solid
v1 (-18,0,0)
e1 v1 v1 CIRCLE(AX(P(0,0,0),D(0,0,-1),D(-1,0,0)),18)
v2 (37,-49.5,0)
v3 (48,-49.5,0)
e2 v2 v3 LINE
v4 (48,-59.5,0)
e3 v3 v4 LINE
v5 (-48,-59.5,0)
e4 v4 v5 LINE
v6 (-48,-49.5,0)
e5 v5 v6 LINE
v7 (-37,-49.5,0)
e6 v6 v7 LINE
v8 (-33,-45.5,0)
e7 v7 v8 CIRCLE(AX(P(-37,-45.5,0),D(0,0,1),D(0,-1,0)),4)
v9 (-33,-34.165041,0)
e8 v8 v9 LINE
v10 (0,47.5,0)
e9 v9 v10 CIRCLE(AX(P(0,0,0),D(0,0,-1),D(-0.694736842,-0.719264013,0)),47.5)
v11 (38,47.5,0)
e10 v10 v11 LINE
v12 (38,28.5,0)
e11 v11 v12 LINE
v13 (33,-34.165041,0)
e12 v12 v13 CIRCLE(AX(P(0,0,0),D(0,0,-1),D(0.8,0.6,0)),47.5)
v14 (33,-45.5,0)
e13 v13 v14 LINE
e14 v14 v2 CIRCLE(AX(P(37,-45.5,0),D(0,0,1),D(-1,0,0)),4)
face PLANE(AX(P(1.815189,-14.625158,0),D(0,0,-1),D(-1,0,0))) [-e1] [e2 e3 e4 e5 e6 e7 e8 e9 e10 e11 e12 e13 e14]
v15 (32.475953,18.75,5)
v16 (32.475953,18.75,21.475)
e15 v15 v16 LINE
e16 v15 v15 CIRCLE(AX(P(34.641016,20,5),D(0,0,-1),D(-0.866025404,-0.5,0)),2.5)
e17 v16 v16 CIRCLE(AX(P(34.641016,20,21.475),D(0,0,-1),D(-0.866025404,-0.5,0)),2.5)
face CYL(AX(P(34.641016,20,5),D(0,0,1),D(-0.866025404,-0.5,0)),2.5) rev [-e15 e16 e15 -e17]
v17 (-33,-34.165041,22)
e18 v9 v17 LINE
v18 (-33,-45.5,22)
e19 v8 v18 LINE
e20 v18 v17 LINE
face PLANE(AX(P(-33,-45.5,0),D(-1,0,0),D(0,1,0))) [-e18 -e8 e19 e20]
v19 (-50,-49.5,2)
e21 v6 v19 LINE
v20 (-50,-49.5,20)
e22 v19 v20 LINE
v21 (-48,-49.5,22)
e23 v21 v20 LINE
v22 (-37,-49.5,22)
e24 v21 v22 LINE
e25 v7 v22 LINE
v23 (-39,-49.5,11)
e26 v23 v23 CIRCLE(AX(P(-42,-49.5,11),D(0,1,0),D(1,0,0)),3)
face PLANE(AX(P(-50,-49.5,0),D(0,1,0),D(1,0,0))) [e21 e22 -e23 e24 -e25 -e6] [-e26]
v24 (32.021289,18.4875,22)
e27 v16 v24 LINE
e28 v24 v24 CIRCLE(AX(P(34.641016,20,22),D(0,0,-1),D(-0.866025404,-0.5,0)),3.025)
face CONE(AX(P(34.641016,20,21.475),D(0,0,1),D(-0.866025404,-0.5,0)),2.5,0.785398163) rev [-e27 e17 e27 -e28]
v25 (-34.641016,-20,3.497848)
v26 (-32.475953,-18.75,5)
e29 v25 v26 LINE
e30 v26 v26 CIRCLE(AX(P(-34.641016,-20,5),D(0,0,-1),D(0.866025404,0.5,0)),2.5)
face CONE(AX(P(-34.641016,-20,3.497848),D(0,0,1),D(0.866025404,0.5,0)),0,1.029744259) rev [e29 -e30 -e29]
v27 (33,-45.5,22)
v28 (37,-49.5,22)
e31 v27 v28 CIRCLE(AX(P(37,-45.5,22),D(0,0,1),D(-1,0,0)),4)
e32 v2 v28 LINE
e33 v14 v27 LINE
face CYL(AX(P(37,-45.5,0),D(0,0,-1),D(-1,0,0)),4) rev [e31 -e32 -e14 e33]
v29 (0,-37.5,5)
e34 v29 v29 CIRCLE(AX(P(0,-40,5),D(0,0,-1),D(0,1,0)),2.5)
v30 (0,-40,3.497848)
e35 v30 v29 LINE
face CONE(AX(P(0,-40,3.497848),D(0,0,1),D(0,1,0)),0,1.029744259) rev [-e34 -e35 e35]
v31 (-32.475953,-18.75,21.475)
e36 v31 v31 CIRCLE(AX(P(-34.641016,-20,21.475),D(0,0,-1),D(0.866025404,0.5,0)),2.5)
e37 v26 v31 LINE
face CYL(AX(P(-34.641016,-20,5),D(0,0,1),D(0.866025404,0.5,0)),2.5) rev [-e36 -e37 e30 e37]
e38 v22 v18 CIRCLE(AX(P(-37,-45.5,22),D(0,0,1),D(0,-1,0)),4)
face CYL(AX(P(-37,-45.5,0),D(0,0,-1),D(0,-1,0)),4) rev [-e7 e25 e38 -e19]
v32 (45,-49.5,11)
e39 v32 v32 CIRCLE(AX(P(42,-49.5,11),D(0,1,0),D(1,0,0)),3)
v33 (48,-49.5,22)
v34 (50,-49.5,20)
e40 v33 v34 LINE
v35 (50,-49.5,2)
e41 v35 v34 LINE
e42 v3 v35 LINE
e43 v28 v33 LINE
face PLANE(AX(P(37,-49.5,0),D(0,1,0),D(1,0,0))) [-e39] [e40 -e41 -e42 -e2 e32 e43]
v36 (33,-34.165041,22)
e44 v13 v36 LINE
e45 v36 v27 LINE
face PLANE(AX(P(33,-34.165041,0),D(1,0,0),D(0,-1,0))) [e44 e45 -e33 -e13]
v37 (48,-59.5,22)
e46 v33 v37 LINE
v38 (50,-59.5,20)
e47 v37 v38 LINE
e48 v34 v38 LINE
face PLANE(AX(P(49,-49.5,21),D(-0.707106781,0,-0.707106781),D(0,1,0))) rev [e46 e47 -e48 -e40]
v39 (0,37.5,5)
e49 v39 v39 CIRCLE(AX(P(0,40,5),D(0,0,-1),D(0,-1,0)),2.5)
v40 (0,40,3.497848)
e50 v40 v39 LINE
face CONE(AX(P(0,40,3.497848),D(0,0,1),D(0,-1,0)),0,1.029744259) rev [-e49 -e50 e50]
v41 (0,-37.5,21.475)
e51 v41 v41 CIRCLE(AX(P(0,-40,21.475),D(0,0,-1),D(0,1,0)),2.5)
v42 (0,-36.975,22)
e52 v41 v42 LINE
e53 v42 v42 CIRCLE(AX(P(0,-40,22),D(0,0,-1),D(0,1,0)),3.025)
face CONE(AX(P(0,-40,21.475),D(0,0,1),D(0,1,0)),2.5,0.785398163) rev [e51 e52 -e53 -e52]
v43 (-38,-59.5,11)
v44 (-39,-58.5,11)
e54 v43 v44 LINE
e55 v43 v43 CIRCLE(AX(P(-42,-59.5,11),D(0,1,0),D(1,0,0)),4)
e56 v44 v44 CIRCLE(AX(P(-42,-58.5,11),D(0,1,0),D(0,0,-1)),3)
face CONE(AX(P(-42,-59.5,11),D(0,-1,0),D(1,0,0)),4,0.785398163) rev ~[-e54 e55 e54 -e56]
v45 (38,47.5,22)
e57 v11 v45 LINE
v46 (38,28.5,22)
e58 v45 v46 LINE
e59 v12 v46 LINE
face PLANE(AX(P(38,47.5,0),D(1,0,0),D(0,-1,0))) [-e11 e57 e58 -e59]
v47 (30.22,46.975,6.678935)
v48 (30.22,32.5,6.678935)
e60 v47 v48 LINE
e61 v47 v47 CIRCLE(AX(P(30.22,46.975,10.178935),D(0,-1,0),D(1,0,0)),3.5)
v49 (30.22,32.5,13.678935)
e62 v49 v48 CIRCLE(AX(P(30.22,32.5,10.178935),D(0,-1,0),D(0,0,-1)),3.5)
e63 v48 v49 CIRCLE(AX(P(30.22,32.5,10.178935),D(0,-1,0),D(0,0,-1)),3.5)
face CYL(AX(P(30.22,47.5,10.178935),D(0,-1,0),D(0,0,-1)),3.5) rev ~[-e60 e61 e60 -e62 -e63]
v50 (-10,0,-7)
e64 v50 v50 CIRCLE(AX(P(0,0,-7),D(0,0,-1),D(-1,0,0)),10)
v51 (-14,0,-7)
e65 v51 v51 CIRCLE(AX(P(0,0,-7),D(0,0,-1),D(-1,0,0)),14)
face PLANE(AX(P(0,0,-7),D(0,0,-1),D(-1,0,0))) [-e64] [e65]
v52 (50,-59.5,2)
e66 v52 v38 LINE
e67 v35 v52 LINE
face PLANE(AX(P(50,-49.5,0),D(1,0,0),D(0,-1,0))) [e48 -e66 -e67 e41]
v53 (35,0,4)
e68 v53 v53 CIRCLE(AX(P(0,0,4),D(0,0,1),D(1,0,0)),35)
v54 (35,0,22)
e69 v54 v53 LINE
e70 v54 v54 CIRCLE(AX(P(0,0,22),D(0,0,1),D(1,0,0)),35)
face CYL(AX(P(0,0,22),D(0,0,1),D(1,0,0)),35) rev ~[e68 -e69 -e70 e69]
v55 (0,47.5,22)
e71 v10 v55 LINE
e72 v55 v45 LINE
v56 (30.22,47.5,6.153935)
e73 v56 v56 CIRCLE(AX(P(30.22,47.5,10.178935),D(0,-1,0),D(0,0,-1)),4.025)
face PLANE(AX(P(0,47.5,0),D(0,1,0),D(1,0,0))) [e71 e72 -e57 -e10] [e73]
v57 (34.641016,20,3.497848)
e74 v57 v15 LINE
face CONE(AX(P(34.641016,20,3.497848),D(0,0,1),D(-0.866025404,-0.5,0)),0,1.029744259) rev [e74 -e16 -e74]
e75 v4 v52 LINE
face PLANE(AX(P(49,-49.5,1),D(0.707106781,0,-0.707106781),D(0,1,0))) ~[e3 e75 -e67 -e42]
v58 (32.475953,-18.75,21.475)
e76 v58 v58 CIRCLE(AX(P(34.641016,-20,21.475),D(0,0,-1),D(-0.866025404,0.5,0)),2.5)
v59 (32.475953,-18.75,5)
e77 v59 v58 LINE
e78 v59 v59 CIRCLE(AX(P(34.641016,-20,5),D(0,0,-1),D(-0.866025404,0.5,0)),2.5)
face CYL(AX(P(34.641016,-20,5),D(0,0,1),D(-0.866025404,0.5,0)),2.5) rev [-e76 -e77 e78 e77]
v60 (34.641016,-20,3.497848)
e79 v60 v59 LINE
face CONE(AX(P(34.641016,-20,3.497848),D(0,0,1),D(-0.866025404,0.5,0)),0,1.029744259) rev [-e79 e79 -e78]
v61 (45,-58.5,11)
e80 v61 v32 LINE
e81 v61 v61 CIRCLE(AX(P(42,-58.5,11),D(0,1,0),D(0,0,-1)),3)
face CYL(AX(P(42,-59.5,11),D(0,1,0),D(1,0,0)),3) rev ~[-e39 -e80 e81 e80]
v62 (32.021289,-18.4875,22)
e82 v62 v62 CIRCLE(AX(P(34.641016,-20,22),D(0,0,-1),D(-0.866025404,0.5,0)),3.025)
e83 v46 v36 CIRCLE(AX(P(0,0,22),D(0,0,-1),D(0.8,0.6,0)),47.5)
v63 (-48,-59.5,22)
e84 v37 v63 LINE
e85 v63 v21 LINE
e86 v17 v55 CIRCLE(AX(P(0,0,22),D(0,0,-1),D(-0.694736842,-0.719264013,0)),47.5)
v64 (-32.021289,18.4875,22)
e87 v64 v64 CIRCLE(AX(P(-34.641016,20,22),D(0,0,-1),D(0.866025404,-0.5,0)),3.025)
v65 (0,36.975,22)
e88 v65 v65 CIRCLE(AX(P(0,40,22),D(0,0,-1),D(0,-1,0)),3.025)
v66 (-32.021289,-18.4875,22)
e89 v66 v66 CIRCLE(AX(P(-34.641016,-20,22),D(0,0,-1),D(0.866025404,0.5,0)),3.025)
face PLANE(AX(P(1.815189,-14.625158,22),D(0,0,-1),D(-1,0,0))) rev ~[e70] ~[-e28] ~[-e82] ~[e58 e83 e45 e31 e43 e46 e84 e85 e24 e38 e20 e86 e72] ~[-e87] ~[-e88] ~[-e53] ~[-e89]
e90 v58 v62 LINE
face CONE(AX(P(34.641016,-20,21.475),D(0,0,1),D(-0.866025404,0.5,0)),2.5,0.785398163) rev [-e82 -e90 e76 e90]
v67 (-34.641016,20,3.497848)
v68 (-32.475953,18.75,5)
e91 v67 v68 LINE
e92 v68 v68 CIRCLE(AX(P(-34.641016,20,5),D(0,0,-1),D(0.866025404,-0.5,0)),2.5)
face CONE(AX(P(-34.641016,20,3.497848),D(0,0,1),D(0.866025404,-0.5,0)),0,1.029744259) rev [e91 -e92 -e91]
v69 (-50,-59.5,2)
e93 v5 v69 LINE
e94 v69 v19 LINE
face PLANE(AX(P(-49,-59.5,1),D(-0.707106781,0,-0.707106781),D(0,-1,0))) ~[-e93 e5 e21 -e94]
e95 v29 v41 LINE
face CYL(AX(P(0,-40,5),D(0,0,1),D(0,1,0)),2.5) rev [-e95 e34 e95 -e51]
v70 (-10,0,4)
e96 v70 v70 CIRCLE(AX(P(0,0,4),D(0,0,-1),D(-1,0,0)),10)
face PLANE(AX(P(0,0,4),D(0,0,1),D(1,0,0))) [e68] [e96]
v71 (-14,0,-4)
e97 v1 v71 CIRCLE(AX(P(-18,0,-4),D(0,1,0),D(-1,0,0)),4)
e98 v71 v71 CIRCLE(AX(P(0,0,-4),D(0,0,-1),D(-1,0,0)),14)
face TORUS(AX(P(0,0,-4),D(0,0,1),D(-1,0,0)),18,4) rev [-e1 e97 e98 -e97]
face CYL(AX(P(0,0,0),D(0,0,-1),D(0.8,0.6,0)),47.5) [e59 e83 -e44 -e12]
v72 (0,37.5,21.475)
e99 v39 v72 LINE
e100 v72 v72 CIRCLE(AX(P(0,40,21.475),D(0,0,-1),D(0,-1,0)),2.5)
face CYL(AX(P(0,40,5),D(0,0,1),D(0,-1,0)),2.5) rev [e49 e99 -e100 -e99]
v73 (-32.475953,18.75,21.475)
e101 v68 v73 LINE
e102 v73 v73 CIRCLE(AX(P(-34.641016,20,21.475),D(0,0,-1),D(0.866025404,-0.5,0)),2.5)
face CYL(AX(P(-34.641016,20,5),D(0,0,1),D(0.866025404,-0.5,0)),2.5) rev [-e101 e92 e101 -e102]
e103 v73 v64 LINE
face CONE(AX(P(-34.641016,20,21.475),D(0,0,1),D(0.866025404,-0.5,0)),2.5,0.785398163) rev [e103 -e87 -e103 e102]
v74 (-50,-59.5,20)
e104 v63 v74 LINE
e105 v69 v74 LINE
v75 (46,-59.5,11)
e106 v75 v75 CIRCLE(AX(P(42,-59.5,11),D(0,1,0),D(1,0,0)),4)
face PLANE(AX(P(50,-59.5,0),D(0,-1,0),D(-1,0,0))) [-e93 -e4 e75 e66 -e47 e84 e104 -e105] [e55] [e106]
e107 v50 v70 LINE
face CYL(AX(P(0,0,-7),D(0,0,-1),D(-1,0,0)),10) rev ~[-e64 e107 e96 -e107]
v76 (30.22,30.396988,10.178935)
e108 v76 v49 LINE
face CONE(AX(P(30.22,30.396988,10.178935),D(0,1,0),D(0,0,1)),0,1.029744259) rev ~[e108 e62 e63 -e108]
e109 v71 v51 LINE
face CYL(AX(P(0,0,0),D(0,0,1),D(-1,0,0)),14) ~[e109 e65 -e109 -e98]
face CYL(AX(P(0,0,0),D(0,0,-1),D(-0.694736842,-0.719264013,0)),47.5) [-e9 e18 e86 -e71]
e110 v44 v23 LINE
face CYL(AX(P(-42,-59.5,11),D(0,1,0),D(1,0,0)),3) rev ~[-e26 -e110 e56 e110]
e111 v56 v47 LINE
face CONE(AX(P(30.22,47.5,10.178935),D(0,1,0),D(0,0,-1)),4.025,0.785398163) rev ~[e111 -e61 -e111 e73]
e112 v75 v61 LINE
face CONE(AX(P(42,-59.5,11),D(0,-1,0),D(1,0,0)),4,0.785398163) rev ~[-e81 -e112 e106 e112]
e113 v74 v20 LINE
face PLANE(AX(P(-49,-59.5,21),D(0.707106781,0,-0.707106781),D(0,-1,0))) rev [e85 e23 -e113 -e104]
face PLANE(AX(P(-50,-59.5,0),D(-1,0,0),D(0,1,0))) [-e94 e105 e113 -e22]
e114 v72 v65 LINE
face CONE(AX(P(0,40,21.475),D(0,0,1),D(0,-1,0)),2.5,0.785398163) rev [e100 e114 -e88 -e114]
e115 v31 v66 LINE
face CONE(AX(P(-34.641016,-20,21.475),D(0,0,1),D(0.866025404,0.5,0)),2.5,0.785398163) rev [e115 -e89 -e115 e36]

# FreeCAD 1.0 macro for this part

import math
import FreeCAD as App
import Part
import Sketcher
from FreeCAD import Vector
Q = App.Units.Quantity


def edges_at(feature, points):
    """Names of the edges that pass closest to the given points."""
    edges = feature.Shape.Edges
    near = lambda p: min(range(len(edges)), key=lambda i: edges[i].distToShape(Part.Vertex(*p))[0])
    return sorted({f"Edge{near(p) + 1}" for p in points})

doc = App.newDocument("Part")
body = doc.addObject("PartDesign::Body", "Body")

# Sketch on XY plane
sketch1 = body.newObject("Sketcher::SketchObject", "Sketch")
sketch1.AttachmentSupport = (doc.getObject("XY_Plane"), [""])
sketch1.MapMode = "FlatFace"
sketch1.addGeometry(Part.LineSegment(Vector(38, 47.5, 0), Vector(0, 47.5, 0)), False)
sketch1.addGeometry(Part.ArcOfCircle(Part.Circle(Vector(0, 0, 0), Vector(0, 0, 1), 47.5), math.radians(90), math.radians(226)), False)
sketch1.addGeometry(Part.LineSegment(Vector(-33, -34.2, 0), Vector(-33, -45.5, 0)), False)
sketch1.addGeometry(Part.ArcOfCircle(Part.Circle(Vector(-37, -45.5, 0), Vector(0, 0, 1), 4), math.radians(-90), math.radians(0)), False)
sketch1.addGeometry(Part.LineSegment(Vector(-37, -49.5, 0), Vector(-50, -49.5, 0)), False)
sketch1.addGeometry(Part.LineSegment(Vector(-50, -49.5, 0), Vector(-50, -59.5, 0)), False)
sketch1.addGeometry(Part.LineSegment(Vector(-50, -59.5, 0), Vector(50, -59.5, 0)), False)
sketch1.addGeometry(Part.LineSegment(Vector(50, -59.5, 0), Vector(50, -49.5, 0)), False)
sketch1.addGeometry(Part.LineSegment(Vector(50, -49.5, 0), Vector(37, -49.5, 0)), False)
sketch1.addGeometry(Part.ArcOfCircle(Part.Circle(Vector(37, -45.5, 0), Vector(0, 0, 1), 4), math.radians(180), math.radians(270)), False)
sketch1.addGeometry(Part.LineSegment(Vector(33, -45.5, 0), Vector(33, -34.2, 0)), False)
sketch1.addGeometry(Part.ArcOfCircle(Part.Circle(Vector(0, 0, 0), Vector(0, 0, 1), 47.5), math.radians(-46), math.radians(37)), False)
sketch1.addGeometry(Part.LineSegment(Vector(38, 28.5, 0), Vector(38, 47.5, 0)), False)
sketch1.addConstraint(Sketcher.Constraint("Tangent", 0, 2, 1, 1))
sketch1.addConstraint(Sketcher.Constraint("Coincident", 1, 2, 2, 1))
sketch1.addConstraint(Sketcher.Constraint("Tangent", 2, 2, 3, 2))
sketch1.addConstraint(Sketcher.Constraint("Tangent", 3, 1, 4, 1))
sketch1.addConstraint(Sketcher.Constraint("Coincident", 4, 2, 5, 1))
sketch1.addConstraint(Sketcher.Constraint("Coincident", 5, 2, 6, 1))
sketch1.addConstraint(Sketcher.Constraint("Coincident", 6, 2, 7, 1))
sketch1.addConstraint(Sketcher.Constraint("Coincident", 7, 2, 8, 1))
sketch1.addConstraint(Sketcher.Constraint("Tangent", 8, 2, 9, 2))
sketch1.addConstraint(Sketcher.Constraint("Tangent", 9, 1, 10, 1))
sketch1.addConstraint(Sketcher.Constraint("Coincident", 10, 2, 11, 1))
sketch1.addConstraint(Sketcher.Constraint("Coincident", 11, 2, 12, 1))
sketch1.addConstraint(Sketcher.Constraint("Coincident", 12, 2, 0, 1))
sketch1.addConstraint(Sketcher.Constraint("Horizontal", 0))
sketch1.addConstraint(Sketcher.Constraint("Vertical", 2))
sketch1.addConstraint(Sketcher.Constraint("Horizontal", 4))
sketch1.addConstraint(Sketcher.Constraint("Vertical", 5))
sketch1.addConstraint(Sketcher.Constraint("Horizontal", 6))
sketch1.addConstraint(Sketcher.Constraint("Vertical", 7))
sketch1.addConstraint(Sketcher.Constraint("Horizontal", 8))
sketch1.addConstraint(Sketcher.Constraint("Vertical", 10))
sketch1.addConstraint(Sketcher.Constraint("Vertical", 12))
sketch1.addConstraint(Sketcher.Constraint("Coincident", 1, 3, -1, 1))
sketch1.addConstraint(Sketcher.Constraint("Coincident", 11, 3, -1, 1))
sketch1.addConstraint(Sketcher.Constraint("Equal", 3, 9))
sketch1.addConstraint(Sketcher.Constraint("Equal", 1, 11))
sketch1.addConstraint(Sketcher.Constraint("Symmetric", 3, 3, 9, 3, -2))
sketch1.addConstraint(Sketcher.Constraint("Equal", 4, 8))
sketch1.addConstraint(Sketcher.Constraint("Radius", 3, 4.0))
sketch1.addConstraint(Sketcher.Constraint("Radius", 1, 47.5))
sketch1.addConstraint(Sketcher.Constraint("DistanceX", 0, 2, 0, 1, 38.0))
sketch1.addConstraint(Sketcher.Constraint("DistanceX", 4, 2, 4, 1, 13.0))
sketch1.addConstraint(Sketcher.Constraint("DistanceX", 6, 1, 6, 2, 100.0))
sketch1.addConstraint(Sketcher.Constraint("DistanceY", 5, 2, 5, 1, 10.0))
sketch1.addConstraint(Sketcher.Constraint("DistanceY", 3, 3, 0, 2, 93.0))
pad1 = body.newObject("PartDesign::Pad", "Pad")
pad1.Profile = sketch1
pad1.Length = 22

# Sketch on XY plane
sketch2 = body.newObject("Sketcher::SketchObject", "Sketch001")
sketch2.AttachmentSupport = (doc.getObject("XY_Plane"), [""])
sketch2.MapMode = "FlatFace"
sketch2.AttachmentOffset = App.Placement(Vector(0, 0, 22), App.Rotation())
sketch2.addGeometry(Part.Circle(Vector(0, 0, 0), Vector(0, 0, 1), 35), False)
sketch2.addConstraint(Sketcher.Constraint("Coincident", 0, 3, -1, 1))
sketch2.addConstraint(Sketcher.Constraint("Diameter", 0, 70.0))
pocket1 = body.newObject("PartDesign::Pocket", "Pocket")
pocket1.Profile = sketch2
pocket1.Length = 18
doc.recompute()

chamfer = body.newObject("PartDesign::Chamfer", "Chamfer")
chamfer.Base = (pocket1, edges_at(pocket1, [
    (50, -54.5, 0),
    (-50, -54.5, 0),
    (-50, -54.5, 22),
    (50, -54.5, 22),
]))
chamfer.Size = 2

# Sketch on YZ plane
sketch3 = body.newObject("Sketcher::SketchObject", "Sketch002")
sketch3.AttachmentSupport = (doc.getObject("YZ_Plane"), [""])
sketch3.MapMode = "FlatFace"
sketch3.addGeometry(Part.LineSegment(Vector(40, 3.5, 0), Vector(40, 22, 0)), False)
sketch3.addGeometry(Part.LineSegment(Vector(40, 22, 0), Vector(37, 22, 0)), False)
sketch3.addGeometry(Part.LineSegment(Vector(37, 22, 0), Vector(37.5, 21.5, 0)), False)
sketch3.addGeometry(Part.LineSegment(Vector(37.5, 21.5, 0), Vector(37.5, 5, 0)), False)
sketch3.addGeometry(Part.LineSegment(Vector(37.5, 5, 0), Vector(40, 3.5, 0)), False)
sketch3.addGeometry(Part.LineSegment(Vector(40, 22, 0), Vector(40, 3.5, 0)), True)  # axis
sketch3.addConstraint(Sketcher.Constraint("Coincident", 0, 2, 1, 1))
sketch3.addConstraint(Sketcher.Constraint("Coincident", 1, 2, 2, 1))
sketch3.addConstraint(Sketcher.Constraint("Coincident", 2, 2, 3, 1))
sketch3.addConstraint(Sketcher.Constraint("Coincident", 3, 2, 4, 1))
sketch3.addConstraint(Sketcher.Constraint("Coincident", 4, 2, 0, 1))
sketch3.addConstraint(Sketcher.Constraint("Vertical", 0))
sketch3.addConstraint(Sketcher.Constraint("Horizontal", 1))
sketch3.addConstraint(Sketcher.Constraint("Vertical", 3))
sketch3.addConstraint(Sketcher.Constraint("Vertical", 5))
sketch3.addConstraint(Sketcher.Constraint("Coincident", 5, 1, 0, 2))
sketch3.addConstraint(Sketcher.Constraint("Equal", 0, 5))
sketch3.addConstraint(Sketcher.Constraint("Angle", 2, Q("-45 deg")))
sketch3.addConstraint(Sketcher.Constraint("Angle", 4, Q("-31 deg")))
sketch3.addConstraint(Sketcher.Constraint("DistanceX", -1, 1, 0, 2, 40.0))
sketch3.addConstraint(Sketcher.Constraint("DistanceY", -1, 1, 0, 2, 22.0))
sketch3.addConstraint(Sketcher.Constraint("DistanceY", -1, 1, 3, 2, 5.0))
sketch3.addConstraint(Sketcher.Constraint("DistanceX", -1, 1, 2, 2, 37.5))
sketch3.addConstraint(Sketcher.Constraint("DistanceX", 1, 2, 1, 1, 3.025))
groove = body.newObject("PartDesign::Groove", "Groove")
groove.Profile = sketch3
groove.ReferenceAxis = (sketch3, ["Axis0"])
groove.Angle = 360
doc.recompute()

polarpattern = body.newObject("PartDesign::PolarPattern", "PolarPattern")
polarpattern.Originals = [groove]
polarpattern.Axis = (doc.getObject("Z_Axis"), [""])
polarpattern.Angle = 360
polarpattern.Occurrences = 6
body.Tip = polarpattern

# Sketch on XZ plane
sketch4 = body.newObject("Sketcher::SketchObject", "Sketch003")
sketch4.AttachmentSupport = (doc.getObject("XZ_Plane"), [""])
sketch4.MapMode = "FlatFace"
sketch4.AttachmentOffset = App.Placement(Vector(0, 0, -47.5), App.Rotation())
sketch4.addGeometry(Part.Circle(Vector(30.2, 10.2, 0), Vector(0, 0, 1), 3.5), False)
sketch4.addConstraint(Sketcher.Constraint("Diameter", 0, 7.0))
sketch4.addConstraint(Sketcher.Constraint("DistanceX", -1, 1, 0, 3, 30.22))
sketch4.addConstraint(Sketcher.Constraint("DistanceY", -1, 1, 0, 3, 10.178935))
doc.recompute()
hole = body.newObject("PartDesign::Hole", "Hole")
hole.Profile = sketch4
hole.ThreadType = "None"
hole.Diameter = 7
hole.DepthType = "Dimension"
hole.Depth = 15
hole.DrillPoint = "Angled"
hole.DrillPointAngle = 118
hole.HoleCutType = "Countersink"
hole.HoleCutDiameter = 8.05
hole.HoleCutCountersinkAngle = 90
hole.Reversed = True

# Sketch on XZ plane
sketch5 = body.newObject("Sketcher::SketchObject", "Sketch004")
sketch5.AttachmentSupport = (doc.getObject("XZ_Plane"), [""])
sketch5.MapMode = "FlatFace"
sketch5.AttachmentOffset = App.Placement(Vector(0, 0, 59.5), App.Rotation())
sketch5.addGeometry(Part.Circle(Vector(-42, 11, 0), Vector(0, 0, 1), 3), False)
sketch5.addGeometry(Part.Circle(Vector(42, 11, 0), Vector(0, 0, 1), 3), False)
sketch5.addConstraint(Sketcher.Constraint("Equal", 0, 1))
sketch5.addConstraint(Sketcher.Constraint("Symmetric", 0, 3, 1, 3, -2))
sketch5.addConstraint(Sketcher.Constraint("Diameter", 0, 6.0))
sketch5.addConstraint(Sketcher.Constraint("DistanceX", 0, 3, -1, 1, 42.0))
sketch5.addConstraint(Sketcher.Constraint("DistanceY", -1, 1, 0, 3, 11.0))
doc.recompute()
hole2 = body.newObject("PartDesign::Hole", "Hole001")
hole2.Profile = sketch5
hole2.ThreadType = "None"
hole2.Diameter = 6
hole2.DepthType = "Dimension"
hole2.Depth = 20
hole2.DrillPoint = "Angled"
hole2.DrillPointAngle = 118
hole2.HoleCutType = "Countersink"
hole2.HoleCutDiameter = 8
hole2.HoleCutCountersinkAngle = 90

# Sketch on XY plane
sketch6 = body.newObject("Sketcher::SketchObject", "Sketch005")
sketch6.AttachmentSupport = (doc.getObject("XY_Plane"), [""])
sketch6.MapMode = "FlatFace"
sketch6.addGeometry(Part.Circle(Vector(0, 0, 0), Vector(0, 0, 1), 14), False)
sketch6.addConstraint(Sketcher.Constraint("Coincident", 0, 3, -1, 1))
sketch6.addConstraint(Sketcher.Constraint("Diameter", 0, 28.0))
pad2 = body.newObject("PartDesign::Pad", "Pad001")
pad2.Profile = sketch6
pad2.Length = 7
pad2.Reversed = True
doc.recompute()

fillet = body.newObject("PartDesign::Fillet", "Fillet")
fillet.Base = (pad2, edges_at(pad2, [(14, 0, 0)]))
fillet.Radius = 4

# Sketch on XY plane
sketch7 = body.newObject("Sketcher::SketchObject", "Sketch006")
sketch7.AttachmentSupport = (doc.getObject("XY_Plane"), [""])
sketch7.MapMode = "FlatFace"
sketch7.AttachmentOffset = App.Placement(Vector(0, 0, -7), App.Rotation())
sketch7.addGeometry(Part.Circle(Vector(0, 0, 0), Vector(0, 0, 1), 10), False)
sketch7.addConstraint(Sketcher.Constraint("Coincident", 0, 3, -1, 1))
sketch7.addConstraint(Sketcher.Constraint("Diameter", 0, 20.0))
pocket2 = body.newObject("PartDesign::Pocket", "Pocket001")
pocket2.Profile = sketch7
pocket2.Type = "ThroughAll"
pocket2.Reversed = True

doc.recompute()
